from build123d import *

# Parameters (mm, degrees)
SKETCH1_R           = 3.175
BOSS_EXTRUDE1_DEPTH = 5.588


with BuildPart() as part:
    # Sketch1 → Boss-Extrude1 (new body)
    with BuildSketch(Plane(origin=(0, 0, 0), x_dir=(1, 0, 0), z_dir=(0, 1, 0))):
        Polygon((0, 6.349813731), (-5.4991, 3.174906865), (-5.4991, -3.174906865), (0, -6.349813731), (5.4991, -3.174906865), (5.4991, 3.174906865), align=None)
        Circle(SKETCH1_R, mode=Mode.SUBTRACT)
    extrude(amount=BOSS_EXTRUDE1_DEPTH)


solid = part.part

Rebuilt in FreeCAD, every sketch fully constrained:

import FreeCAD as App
import Part
import Sketcher
from FreeCAD import Vector
Q = App.Units.Quantity

doc = App.newDocument("Part")
body = doc.addObject("PartDesign::Body", "Body")

sketch1 = body.newObject("Sketcher::SketchObject", "Sketch")
sketch1.AttachmentSupport = (doc.getObject("XZ_Plane"), [""])
sketch1.MapMode = "FlatFace"
sketch1.addGeometry([
    Part.LineSegment(Vector(0, -6.3, 0), Vector(-5.5, -3.2, 0)),
    Part.LineSegment(Vector(-5.5, -3.2, 0), Vector(-5.5, 3.2, 0)),
    Part.LineSegment(Vector(-5.5, 3.2, 0), Vector(0, 6.3, 0)),
    Part.LineSegment(Vector(0, 6.3, 0), Vector(5.5, 3.2, 0)),
    Part.LineSegment(Vector(5.5, 3.2, 0), Vector(5.5, -3.2, 0)),
    Part.LineSegment(Vector(5.5, -3.2, 0), Vector(0, -6.3, 0)),
    Part.Circle(Vector(0, 0, 0), Vector(0, 0, 1), 3.2),
], False)
sketch1.addConstraint([
    Sketcher.Constraint("Coincident", 0, 2, 1, 1),
    Sketcher.Constraint("Coincident", 1, 2, 2, 1),
    Sketcher.Constraint("Coincident", 2, 2, 3, 1),
    Sketcher.Constraint("Coincident", 3, 2, 4, 1),
    Sketcher.Constraint("Coincident", 4, 2, 5, 1),
    Sketcher.Constraint("Coincident", 5, 2, 0, 1),
    Sketcher.Constraint("Vertical", 1),
    Sketcher.Constraint("Vertical", 4),
    Sketcher.Constraint("Coincident", 6, 3, -1, 1),
    Sketcher.Constraint("Symmetric", 0, 2, 3, 2, -1, 1),
    Sketcher.Constraint("Symmetric", 2, 2, 5, 2, -1, 1),
    Sketcher.Constraint("PointOnObject", 2, 2, -2),
    Sketcher.Constraint("Parallel", 2, 5),
    Sketcher.Constraint("Horizontal", 1, 2, 3, 2),
    Sketcher.Constraint("Diameter", 6, Q("0.25 in")),
    Sketcher.Constraint("Angle", 0, Q("150 deg")),
    Sketcher.Constraint("DistanceX", 1, 2, 3, 2, Q("0.433 in")),
    Sketcher.Constraint("DistanceY", 1, 1, 1, 2, Q("6.349814 mm")),
])
pad1 = body.newObject("PartDesign::Pad", "Pad")
pad1.Profile = sketch1
pad1.Length = Q("0.22 in")
pad1.Reversed = True

doc.recompute()
